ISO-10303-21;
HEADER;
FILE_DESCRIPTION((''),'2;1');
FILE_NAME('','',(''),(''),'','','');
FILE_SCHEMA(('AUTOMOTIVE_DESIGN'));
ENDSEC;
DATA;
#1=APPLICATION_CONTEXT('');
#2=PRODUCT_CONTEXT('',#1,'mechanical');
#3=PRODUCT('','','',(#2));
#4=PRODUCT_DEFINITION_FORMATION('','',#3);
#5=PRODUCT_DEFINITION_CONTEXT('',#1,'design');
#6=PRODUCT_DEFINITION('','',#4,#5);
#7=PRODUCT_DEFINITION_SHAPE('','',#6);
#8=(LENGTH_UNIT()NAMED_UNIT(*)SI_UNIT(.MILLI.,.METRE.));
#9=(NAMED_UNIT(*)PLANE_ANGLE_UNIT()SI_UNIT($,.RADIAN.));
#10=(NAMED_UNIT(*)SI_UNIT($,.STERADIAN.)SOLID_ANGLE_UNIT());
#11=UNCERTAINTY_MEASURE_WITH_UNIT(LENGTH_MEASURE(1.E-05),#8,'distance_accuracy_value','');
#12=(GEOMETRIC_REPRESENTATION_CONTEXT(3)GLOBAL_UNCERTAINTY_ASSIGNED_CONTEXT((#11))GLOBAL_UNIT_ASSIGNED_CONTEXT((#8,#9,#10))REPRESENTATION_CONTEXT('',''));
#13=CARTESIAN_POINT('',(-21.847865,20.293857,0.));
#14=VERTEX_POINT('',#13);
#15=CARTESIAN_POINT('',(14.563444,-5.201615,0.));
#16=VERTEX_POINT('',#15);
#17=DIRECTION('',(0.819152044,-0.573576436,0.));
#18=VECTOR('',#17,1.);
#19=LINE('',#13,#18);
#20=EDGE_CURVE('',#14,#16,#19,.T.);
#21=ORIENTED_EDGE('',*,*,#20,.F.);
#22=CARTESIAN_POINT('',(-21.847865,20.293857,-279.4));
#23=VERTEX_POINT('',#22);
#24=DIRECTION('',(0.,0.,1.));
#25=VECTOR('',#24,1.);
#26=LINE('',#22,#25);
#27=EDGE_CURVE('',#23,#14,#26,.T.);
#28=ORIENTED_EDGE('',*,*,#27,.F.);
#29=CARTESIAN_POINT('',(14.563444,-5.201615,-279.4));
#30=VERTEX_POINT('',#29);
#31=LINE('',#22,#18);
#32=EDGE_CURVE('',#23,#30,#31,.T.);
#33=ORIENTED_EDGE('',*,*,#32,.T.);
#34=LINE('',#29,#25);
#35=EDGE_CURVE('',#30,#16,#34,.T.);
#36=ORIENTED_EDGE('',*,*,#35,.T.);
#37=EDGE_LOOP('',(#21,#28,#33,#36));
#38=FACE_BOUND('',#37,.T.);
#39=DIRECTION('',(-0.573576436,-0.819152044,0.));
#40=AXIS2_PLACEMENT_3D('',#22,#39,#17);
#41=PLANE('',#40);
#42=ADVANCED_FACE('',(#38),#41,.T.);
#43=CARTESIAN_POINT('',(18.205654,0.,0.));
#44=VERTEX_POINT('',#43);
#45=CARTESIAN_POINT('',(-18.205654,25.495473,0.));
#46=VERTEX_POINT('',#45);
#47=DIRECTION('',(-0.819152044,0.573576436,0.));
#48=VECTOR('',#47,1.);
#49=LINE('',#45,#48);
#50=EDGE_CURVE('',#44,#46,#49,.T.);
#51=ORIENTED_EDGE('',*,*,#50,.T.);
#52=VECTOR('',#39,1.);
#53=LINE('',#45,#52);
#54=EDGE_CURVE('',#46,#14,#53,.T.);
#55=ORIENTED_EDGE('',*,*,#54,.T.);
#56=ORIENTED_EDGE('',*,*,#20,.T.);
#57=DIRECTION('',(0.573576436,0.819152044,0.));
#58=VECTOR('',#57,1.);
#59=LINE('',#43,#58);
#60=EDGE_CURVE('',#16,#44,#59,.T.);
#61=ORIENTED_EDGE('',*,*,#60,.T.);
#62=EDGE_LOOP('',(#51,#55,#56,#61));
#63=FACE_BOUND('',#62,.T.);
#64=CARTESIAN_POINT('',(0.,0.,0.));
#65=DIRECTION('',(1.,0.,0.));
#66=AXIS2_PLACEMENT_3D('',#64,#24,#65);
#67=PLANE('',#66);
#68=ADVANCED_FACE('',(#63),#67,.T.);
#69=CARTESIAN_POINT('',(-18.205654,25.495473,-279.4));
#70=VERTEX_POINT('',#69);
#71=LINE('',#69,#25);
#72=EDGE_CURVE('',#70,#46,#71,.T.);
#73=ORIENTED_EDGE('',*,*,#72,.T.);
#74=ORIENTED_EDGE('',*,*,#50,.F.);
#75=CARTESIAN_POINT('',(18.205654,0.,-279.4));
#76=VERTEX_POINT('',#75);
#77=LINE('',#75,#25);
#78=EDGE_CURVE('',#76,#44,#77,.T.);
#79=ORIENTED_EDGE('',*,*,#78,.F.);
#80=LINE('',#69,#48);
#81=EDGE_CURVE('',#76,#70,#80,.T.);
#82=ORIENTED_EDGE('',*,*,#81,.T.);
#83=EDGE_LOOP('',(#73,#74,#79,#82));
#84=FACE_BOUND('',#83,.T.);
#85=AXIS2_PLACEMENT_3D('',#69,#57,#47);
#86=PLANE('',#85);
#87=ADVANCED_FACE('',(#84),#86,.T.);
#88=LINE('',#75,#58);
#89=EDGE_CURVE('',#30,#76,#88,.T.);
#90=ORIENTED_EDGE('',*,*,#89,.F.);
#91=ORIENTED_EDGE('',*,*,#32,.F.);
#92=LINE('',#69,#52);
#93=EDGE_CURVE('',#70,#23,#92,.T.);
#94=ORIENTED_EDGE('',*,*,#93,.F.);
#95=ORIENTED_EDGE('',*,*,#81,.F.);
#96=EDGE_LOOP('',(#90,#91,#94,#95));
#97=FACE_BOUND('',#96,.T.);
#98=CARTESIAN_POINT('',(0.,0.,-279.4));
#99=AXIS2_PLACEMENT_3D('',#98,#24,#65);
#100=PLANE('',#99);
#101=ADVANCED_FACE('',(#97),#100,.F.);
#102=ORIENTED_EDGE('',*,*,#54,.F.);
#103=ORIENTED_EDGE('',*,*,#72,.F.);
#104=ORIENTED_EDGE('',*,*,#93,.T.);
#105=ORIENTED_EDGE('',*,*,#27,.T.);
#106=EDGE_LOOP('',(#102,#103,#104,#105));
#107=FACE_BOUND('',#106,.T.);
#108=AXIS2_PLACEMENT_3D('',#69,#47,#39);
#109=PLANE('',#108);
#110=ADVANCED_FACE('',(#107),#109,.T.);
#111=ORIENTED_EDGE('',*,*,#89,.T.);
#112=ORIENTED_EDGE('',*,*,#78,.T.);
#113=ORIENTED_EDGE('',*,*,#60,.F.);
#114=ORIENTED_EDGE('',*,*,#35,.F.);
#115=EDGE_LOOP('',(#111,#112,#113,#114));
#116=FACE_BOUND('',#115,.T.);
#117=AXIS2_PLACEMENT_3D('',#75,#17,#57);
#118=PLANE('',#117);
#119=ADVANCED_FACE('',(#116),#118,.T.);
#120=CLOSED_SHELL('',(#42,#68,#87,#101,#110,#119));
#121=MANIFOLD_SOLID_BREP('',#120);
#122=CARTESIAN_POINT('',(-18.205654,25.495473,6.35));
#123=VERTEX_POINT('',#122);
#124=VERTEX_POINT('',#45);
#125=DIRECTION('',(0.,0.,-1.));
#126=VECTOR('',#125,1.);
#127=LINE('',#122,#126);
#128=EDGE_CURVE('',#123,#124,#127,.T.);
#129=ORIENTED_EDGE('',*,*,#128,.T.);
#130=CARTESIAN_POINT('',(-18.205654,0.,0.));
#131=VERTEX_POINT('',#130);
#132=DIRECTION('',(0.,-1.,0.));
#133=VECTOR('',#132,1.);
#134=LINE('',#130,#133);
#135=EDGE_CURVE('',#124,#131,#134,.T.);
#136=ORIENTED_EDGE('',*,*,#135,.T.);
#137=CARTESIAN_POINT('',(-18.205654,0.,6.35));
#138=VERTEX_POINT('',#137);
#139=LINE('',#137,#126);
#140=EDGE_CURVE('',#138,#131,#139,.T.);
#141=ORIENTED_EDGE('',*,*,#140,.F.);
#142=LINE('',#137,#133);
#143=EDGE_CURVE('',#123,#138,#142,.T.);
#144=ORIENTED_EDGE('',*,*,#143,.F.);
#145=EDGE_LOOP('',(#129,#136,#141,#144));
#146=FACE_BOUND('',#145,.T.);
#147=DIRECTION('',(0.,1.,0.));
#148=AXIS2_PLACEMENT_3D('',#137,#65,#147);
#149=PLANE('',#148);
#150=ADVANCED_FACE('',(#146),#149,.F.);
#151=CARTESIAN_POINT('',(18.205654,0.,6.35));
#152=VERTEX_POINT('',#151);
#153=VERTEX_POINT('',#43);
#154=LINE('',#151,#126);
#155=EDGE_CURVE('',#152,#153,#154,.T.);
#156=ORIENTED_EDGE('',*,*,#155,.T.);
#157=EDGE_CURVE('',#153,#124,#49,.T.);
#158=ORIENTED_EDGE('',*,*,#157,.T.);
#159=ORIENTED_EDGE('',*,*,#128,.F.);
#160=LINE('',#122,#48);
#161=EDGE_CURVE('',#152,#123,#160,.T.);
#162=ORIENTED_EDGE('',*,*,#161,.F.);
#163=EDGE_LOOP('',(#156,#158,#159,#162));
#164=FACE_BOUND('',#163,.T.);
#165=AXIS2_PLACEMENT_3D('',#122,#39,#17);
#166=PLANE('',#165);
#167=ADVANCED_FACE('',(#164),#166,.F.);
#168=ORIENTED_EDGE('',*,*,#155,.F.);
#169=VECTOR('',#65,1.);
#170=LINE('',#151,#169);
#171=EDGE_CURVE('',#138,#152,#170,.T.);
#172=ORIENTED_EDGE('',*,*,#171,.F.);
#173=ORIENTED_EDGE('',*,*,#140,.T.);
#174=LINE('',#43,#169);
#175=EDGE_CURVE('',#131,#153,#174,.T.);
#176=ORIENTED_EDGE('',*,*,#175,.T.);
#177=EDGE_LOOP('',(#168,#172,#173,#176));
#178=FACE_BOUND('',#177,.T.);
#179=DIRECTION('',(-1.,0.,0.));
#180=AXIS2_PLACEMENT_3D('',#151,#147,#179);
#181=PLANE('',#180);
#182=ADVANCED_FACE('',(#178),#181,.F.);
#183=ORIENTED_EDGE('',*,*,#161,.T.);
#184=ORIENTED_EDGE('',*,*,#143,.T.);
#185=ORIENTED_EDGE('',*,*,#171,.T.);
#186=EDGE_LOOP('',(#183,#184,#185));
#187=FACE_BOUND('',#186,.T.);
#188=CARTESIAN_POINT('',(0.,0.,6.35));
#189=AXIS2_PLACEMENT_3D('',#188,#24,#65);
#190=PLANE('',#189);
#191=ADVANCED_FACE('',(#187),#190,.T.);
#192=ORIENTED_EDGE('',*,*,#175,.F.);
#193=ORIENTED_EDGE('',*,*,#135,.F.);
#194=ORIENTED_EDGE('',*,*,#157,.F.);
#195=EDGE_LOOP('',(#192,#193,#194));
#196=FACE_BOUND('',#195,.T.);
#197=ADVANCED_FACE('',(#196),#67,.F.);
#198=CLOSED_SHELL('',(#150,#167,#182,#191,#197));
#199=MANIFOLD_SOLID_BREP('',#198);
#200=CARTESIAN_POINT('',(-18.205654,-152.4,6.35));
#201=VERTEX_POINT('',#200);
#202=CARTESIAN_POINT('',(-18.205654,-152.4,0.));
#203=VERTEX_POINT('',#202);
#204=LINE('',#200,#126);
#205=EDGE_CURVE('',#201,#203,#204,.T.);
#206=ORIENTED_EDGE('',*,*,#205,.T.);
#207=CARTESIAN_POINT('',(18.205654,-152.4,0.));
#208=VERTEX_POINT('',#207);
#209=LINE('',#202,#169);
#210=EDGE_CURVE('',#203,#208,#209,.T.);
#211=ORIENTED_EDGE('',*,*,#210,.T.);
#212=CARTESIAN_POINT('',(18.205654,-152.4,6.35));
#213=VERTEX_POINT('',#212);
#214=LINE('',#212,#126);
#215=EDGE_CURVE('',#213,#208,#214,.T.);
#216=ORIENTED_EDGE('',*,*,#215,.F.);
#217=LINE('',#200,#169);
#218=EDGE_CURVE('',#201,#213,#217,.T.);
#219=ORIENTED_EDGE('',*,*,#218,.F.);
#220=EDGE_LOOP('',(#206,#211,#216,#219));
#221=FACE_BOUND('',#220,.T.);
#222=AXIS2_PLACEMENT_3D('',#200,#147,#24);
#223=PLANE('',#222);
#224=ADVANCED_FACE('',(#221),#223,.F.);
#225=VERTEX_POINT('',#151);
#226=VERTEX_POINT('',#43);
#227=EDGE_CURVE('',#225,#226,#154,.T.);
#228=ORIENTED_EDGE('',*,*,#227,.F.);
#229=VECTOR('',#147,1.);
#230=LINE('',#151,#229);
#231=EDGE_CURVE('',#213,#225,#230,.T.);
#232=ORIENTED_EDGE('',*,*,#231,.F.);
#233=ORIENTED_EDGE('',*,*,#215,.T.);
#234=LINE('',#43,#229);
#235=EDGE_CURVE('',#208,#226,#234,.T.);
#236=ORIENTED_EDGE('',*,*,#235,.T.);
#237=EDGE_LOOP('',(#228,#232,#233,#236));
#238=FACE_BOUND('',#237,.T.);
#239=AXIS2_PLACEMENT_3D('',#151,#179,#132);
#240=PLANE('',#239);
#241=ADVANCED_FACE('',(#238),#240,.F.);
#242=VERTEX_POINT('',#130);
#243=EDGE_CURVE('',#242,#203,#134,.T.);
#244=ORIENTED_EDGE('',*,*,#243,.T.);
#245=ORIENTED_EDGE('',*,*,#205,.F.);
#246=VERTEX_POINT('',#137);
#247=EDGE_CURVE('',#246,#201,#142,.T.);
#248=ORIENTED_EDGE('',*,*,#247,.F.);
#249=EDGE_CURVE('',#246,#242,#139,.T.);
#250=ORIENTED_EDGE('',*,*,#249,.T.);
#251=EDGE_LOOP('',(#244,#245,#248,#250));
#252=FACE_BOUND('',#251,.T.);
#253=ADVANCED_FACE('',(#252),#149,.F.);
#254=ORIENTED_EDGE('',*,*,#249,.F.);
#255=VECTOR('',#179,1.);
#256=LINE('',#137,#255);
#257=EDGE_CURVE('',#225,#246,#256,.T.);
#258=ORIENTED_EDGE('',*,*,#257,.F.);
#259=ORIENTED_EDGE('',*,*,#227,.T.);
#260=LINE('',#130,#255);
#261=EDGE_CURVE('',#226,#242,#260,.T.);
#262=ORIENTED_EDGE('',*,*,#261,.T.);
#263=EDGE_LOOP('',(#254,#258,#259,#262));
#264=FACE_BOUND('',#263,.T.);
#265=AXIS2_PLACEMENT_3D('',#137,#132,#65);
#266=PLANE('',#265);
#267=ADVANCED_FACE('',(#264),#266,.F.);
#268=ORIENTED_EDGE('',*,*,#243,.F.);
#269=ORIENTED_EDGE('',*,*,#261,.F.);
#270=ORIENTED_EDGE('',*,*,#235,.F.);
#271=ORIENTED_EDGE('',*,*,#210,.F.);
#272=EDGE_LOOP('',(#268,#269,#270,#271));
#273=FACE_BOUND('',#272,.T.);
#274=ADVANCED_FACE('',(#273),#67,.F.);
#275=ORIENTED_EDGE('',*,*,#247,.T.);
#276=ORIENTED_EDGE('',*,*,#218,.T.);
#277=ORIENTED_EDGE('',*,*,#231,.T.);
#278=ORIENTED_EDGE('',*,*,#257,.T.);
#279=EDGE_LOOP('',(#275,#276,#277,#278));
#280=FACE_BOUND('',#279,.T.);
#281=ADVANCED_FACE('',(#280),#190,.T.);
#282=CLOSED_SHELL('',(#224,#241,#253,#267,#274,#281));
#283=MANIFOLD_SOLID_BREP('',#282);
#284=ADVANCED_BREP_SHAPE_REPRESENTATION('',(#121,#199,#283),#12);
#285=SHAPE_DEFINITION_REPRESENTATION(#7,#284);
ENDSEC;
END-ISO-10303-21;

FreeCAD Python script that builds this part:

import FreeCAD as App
import Part
import Sketcher

V = App.Vector
Q = App.Units.Quantity


def add_polygon(sketch, points):
    """Adds a closed chain of lines whose ends are joined by coincident constraints."""
    first, n = sketch.GeometryCount, len(points)
    for a, b in zip(points, points[1:] + points[:1]):
        sketch.addGeometry(Part.LineSegment(App.Vector(*a, 0), App.Vector(*b, 0)), False)
    for i in range(n):
        sketch.addConstraint(Sketcher.Constraint("Coincident", first + i, 2, first + (i + 1) % n, 1))

doc = App.newDocument("Part")
params = doc.addObject("Spreadsheet::Sheet", "Params")
for row, (alias, value) in enumerate([
    ("sketch1_length", "1.75 in"),
    ("pad1_length", "0.25 in"),
    ("sketch2_height", "6 in"),
    ("pad2_length", "0.25 in"),
    ("sketch3_length", "1.75 in"),
    ("sketch3_length2", "0.25 in"),
    ("pad3_length", "11 in"),
], start=1):
    params.set(f"A{row}", alias)
    params.set(f"B{row}", "=" + value)
    params.setAlias(f"B{row}", alias)

body = doc.addObject("PartDesign::Body", "Body")

# Sketch on XY plane
sketch1 = body.newObject("Sketcher::SketchObject", "Sketch")
sketch1.AttachmentSupport = (doc.getObject("XY_Plane"), [""])
sketch1.MapMode = "FlatFace"
add_polygon(sketch1, [(18, 0), (-18, 25), (-18, 0)])  # lines 0-2
sketch1.addConstraint([
    Sketcher.Constraint("Vertical", 1),
    Sketcher.Constraint("Horizontal", 2),
    Sketcher.Constraint("Symmetric", 1, 2, 2, 2, -1, 1),
    Sketcher.Constraint("Angle", 0, Q("145 deg")),
    Sketcher.Constraint("Distance", 0, Q("1.75 in")),
])
sketch1.setExpression("Constraints[7]", "Params.sketch1_length")
pad1 = body.newObject("PartDesign::Pad", "Pad")
pad1.Profile = sketch1
pad1.setExpression("Length", "Params.pad1_length")
body2 = doc.addObject("PartDesign::Body", "Body001")

# Sketch on XY plane
sketch2 = body2.newObject("Sketcher::SketchObject", "Sketch001")
sketch2.AttachmentSupport = (doc.getObject("XY_Plane001"), [""])
sketch2.MapMode = "FlatFace"
add_polygon(sketch2, [(-18, 0), (-18, -152), (18, -152), (18, 0)])  # lines 0-3
sketch2.addConstraint([
    Sketcher.Constraint("Vertical", 0),
    Sketcher.Constraint("Horizontal", 1),
    Sketcher.Constraint("Vertical", 2),
    Sketcher.Constraint("Horizontal", 3),
    Sketcher.Constraint("Symmetric", 2, 2, 3, 2, -1, 1),
    Sketcher.Constraint("DistanceY", 0, 2, 0, 1, Q("6 in")),
    Sketcher.Constraint("DistanceX", 1, 1, 1, 2, Q("36.411308 mm")),
])
sketch2.setExpression("Constraints[9]", "Params.sketch2_height")
pad2 = body2.newObject("PartDesign::Pad", "Pad001")
pad2.Profile = sketch2
pad2.setExpression("Length", "Params.pad2_length")
body3 = doc.addObject("PartDesign::Body", "Body002")

# Sketch on XY plane
sketch3 = body3.newObject("Sketcher::SketchObject", "Sketch002")
sketch3.AttachmentSupport = (doc.getObject("XY_Plane002"), [""])
sketch3.MapMode = "FlatFace"
add_polygon(sketch3, [(18, 0), (-18, 25), (-22, 20), (15, -5)])  # lines 0-3
sketch3.addConstraint([
    Sketcher.Constraint("PointOnObject", 3, 2, -1),
    Sketcher.Constraint("Perpendicular", 0, 1),
    Sketcher.Constraint("Perpendicular", 1, 2),
    Sketcher.Constraint("Perpendicular", 2, 3),
    Sketcher.Constraint("Angle", 0, Q("145 deg")),
    Sketcher.Constraint("Distance", 0, Q("1.75 in")),
    Sketcher.Constraint("Distance", 1, Q("0.25 in")),
    Sketcher.Constraint("DistanceX", 0, 2, -1, 1, Q("18.205654 mm")),
])
sketch3.setExpression("Constraints[9]", "Params.sketch3_length")
sketch3.setExpression("Constraints[10]", "Params.sketch3_length2")
pad3 = body3.newObject("PartDesign::Pad", "Pad002")
pad3.Profile = sketch3
pad3.setExpression("Length", "Params.pad3_length")
pad3.Reversed = True

doc.recompute()
